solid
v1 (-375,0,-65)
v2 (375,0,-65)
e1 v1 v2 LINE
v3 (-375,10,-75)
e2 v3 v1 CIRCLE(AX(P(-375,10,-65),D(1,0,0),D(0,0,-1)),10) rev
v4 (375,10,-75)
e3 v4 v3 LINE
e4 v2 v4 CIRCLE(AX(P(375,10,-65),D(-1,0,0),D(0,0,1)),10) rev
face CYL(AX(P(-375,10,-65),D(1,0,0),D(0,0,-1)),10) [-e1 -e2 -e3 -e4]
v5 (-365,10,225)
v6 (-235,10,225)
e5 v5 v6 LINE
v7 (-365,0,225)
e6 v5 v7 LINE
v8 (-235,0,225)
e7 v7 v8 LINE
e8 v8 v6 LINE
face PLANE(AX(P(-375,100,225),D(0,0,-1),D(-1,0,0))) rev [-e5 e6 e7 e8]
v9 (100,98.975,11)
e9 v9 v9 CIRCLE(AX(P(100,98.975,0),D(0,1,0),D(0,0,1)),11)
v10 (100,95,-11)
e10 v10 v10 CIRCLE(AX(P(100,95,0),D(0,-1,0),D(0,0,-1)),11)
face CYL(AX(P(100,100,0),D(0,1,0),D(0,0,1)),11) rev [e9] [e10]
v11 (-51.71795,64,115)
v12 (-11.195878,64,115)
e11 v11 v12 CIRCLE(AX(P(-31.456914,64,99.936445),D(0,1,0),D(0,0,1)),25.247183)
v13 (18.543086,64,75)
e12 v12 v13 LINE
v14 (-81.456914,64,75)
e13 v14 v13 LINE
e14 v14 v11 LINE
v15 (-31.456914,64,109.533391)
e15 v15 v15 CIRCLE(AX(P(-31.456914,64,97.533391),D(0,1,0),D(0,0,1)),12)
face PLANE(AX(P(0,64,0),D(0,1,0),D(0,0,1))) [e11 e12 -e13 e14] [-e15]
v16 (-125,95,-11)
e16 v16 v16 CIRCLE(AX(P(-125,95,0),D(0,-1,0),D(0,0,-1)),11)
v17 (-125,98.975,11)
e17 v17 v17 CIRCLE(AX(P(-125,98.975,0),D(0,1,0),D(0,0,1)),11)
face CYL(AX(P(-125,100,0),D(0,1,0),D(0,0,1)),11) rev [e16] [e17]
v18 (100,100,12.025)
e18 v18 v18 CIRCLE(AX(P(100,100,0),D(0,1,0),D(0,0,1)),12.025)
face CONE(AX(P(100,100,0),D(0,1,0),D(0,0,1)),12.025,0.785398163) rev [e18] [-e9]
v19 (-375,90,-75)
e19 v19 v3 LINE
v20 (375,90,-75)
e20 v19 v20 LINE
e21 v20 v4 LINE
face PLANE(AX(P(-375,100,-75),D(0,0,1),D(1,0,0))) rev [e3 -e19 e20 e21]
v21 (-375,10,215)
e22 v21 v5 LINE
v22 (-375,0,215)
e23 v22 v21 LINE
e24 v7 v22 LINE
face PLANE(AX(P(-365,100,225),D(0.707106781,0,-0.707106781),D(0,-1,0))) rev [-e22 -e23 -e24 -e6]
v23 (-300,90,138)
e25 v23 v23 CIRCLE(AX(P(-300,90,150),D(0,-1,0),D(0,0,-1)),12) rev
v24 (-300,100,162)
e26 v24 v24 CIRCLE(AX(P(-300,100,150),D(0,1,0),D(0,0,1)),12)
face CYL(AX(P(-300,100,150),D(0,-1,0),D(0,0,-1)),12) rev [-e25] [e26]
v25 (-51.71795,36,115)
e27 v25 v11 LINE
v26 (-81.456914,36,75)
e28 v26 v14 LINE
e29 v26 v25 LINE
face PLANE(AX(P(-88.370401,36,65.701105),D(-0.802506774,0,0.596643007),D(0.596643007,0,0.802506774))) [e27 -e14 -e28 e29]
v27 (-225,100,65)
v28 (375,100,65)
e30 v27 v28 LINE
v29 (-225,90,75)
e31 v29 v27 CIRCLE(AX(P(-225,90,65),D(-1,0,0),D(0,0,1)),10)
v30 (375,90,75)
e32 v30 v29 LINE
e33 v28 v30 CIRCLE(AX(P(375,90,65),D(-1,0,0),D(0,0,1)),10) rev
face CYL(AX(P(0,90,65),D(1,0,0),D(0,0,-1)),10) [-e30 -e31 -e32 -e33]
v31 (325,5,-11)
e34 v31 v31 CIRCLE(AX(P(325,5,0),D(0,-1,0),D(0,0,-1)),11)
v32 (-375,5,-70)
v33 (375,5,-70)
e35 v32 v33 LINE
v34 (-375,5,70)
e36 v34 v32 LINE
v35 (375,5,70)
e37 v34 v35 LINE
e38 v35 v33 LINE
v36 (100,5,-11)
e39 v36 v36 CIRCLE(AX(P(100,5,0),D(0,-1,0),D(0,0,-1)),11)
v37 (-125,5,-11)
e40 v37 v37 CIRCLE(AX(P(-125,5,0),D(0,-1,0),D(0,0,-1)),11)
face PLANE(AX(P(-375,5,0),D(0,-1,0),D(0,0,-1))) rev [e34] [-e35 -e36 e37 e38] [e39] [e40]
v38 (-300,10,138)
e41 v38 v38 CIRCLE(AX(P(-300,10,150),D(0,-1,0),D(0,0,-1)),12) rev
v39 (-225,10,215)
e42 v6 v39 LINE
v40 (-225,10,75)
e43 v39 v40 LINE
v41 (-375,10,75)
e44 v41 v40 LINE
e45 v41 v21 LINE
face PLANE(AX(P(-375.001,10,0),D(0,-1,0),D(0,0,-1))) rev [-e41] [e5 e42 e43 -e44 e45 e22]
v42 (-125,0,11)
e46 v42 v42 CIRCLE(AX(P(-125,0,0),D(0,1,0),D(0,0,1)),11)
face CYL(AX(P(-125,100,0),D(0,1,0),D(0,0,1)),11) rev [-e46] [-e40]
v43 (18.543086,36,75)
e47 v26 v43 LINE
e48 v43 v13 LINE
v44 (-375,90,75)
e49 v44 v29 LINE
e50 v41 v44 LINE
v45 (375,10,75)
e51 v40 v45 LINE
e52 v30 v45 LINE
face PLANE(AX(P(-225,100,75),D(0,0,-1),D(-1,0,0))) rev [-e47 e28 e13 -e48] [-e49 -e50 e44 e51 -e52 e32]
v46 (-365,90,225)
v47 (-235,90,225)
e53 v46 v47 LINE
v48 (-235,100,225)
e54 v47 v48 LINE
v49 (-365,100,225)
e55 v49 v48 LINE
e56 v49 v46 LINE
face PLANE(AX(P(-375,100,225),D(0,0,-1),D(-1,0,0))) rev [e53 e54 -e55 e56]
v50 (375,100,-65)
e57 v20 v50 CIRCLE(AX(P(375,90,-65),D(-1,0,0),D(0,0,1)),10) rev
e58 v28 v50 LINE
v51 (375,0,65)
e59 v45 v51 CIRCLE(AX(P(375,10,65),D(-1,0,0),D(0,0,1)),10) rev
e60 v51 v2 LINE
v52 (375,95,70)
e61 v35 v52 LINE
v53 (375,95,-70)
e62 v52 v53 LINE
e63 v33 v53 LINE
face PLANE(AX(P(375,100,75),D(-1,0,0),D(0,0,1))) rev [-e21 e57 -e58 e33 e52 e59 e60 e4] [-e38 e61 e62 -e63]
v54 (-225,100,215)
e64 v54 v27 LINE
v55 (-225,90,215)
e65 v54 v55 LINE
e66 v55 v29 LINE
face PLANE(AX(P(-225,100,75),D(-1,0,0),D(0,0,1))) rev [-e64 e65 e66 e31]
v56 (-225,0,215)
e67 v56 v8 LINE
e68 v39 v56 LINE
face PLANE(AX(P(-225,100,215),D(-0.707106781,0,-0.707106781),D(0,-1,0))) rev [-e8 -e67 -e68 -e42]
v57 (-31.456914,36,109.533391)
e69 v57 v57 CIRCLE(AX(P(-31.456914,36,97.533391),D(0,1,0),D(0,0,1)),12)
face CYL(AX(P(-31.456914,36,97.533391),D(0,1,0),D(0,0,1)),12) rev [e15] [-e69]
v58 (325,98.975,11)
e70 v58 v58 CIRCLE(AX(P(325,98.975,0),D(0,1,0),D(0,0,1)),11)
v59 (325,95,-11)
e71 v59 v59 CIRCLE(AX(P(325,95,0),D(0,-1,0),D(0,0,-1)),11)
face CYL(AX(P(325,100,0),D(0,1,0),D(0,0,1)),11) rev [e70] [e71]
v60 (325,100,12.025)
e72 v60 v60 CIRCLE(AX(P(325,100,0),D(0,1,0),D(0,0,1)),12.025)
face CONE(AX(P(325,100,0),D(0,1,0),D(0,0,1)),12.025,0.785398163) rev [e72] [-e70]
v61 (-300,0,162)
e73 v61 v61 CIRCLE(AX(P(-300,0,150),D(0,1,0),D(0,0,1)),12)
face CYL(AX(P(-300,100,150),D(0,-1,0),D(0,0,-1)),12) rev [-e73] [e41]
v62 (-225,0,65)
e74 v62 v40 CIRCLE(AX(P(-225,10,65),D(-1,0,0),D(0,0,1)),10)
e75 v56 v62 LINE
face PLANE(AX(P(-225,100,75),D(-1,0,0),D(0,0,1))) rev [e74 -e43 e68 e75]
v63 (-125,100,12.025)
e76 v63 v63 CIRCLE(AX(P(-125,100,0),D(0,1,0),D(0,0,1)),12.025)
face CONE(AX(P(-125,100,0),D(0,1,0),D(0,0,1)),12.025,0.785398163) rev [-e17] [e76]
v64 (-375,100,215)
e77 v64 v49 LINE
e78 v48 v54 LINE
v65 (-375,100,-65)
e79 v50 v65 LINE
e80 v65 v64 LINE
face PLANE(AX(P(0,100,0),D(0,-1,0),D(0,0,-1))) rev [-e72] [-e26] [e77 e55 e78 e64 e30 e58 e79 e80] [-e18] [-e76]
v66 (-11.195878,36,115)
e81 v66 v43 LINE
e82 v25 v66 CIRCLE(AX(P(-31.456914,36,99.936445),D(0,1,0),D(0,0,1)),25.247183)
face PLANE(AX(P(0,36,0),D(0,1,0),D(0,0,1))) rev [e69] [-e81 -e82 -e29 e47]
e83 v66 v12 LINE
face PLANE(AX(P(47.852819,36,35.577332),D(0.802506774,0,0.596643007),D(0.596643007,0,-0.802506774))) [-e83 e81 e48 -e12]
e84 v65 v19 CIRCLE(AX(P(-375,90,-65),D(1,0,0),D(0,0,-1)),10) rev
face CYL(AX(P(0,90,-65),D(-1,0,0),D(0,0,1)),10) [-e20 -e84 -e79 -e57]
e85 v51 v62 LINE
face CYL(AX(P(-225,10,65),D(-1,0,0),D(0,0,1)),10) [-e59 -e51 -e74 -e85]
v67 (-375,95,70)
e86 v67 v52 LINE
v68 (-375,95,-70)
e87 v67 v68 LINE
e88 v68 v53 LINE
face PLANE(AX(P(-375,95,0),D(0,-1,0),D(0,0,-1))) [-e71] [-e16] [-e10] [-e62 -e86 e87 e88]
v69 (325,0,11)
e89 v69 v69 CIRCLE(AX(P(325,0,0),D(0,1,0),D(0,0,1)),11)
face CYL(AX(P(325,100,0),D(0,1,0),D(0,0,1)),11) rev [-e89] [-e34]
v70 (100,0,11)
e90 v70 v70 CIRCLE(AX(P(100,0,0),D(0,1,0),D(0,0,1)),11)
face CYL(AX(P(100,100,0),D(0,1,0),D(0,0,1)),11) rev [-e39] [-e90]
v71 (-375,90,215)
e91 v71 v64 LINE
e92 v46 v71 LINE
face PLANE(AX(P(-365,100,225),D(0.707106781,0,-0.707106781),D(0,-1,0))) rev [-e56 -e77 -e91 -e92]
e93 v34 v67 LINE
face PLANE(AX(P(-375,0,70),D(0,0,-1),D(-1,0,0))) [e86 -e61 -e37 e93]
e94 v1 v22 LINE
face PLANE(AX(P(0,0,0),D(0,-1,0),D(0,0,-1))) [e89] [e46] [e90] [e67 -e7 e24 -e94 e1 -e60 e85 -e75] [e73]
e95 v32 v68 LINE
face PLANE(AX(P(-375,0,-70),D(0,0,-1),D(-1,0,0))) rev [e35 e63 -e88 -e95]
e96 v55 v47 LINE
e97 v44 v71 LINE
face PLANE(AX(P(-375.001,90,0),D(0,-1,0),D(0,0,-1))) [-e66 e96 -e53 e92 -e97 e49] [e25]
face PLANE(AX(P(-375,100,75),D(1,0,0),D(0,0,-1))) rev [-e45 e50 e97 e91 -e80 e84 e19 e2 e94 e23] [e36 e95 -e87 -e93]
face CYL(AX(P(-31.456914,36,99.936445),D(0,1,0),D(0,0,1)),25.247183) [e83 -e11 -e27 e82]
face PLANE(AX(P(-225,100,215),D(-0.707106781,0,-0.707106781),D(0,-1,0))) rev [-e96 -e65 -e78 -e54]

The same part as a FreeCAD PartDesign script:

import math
import FreeCAD as App
import Part
import Sketcher

V = App.Vector


def edges_at(feature, points):
    """Names of the edges that pass closest to the given points."""
    edges = feature.Shape.Edges
    near = lambda p: min(range(len(edges)), key=lambda i: edges[i].distToShape(Part.Vertex(*p))[0])
    return sorted({f"Edge{near(p) + 1}" for p in points})


def add_polygon(sketch, points):
    """Adds a closed chain of lines whose ends are joined by coincident constraints."""
    first, n = sketch.GeometryCount, len(points)
    for a, b in zip(points, points[1:] + points[:1]):
        sketch.addGeometry(Part.LineSegment(App.Vector(*a, 0), App.Vector(*b, 0)), False)
    for i in range(n):
        sketch.addConstraint(Sketcher.Constraint("Coincident", first + i, 2, first + (i + 1) % n, 1))

doc = App.newDocument("Part")
body = doc.addObject("PartDesign::Body", "Body")

# Sketch on XZ plane
sketch1 = doc.addObject("Sketcher::SketchObject", "Sketch")
body.addObject(sketch1)
sketch1.AttachmentSupport = (doc.XZ_Plane, [""])
sketch1.MapMode = "FlatFace"
add_polygon(sketch1, [(375, -75), (-375, -75), (-375, 225), (-225, 225), (-225, 75), (375, 75)])  # lines 0-5
sketch1.addGeometry(Part.Circle(V(-300, 150, 0), V(0, 0, 1), 12), False)  # 6
sketch1.addConstraint([
    Sketcher.Constraint("Horizontal", 0),
    Sketcher.Constraint("Vertical", 1),
    Sketcher.Constraint("Horizontal", 2),
    Sketcher.Constraint("Vertical", 3),
    Sketcher.Constraint("Horizontal", 4),
    Sketcher.Constraint("Vertical", 5),
    Sketcher.Constraint("Symmetric", 0, 2, 4, 2, -1, 1),
    Sketcher.Constraint("Equal", 2, 3),
    Sketcher.Constraint("Equal", 3, 5),
    Sketcher.Constraint("Diameter", 6, 24.0),
    Sketcher.Constraint("DistanceX", 0, 2, 0, 1, 750.0),
    Sketcher.Constraint("DistanceX", 2, 1, 2, 2, 150.0),
    Sketcher.Constraint("DistanceX", 6, 3, -1, 1, 300.0),
    Sketcher.Constraint("DistanceY", -1, 1, 6, 3, 150.0),
])
pad1 = doc.addObject("PartDesign::Pad", "Pad")
body.addObject(pad1)
pad1.Profile = sketch1
pad1.Length = 100
pad1.Reversed = True

# Sketch on YZ plane
sketch2 = doc.addObject("Sketcher::SketchObject", "Sketch001")
body.addObject(sketch2)
sketch2.AttachmentSupport = (doc.YZ_Plane, [""])
sketch2.MapMode = "FlatFace"
sketch2.AttachmentOffset = App.Placement(V(0, 0, 375), App.Rotation())
add_polygon(sketch2, [(95, 70), (5, 70), (5, -70), (95, -70)])  # lines 0-3
sketch2.addConstraint([
    Sketcher.Constraint("Horizontal", 0),
    Sketcher.Constraint("Vertical", 1),
    Sketcher.Constraint("Horizontal", 2),
    Sketcher.Constraint("Vertical", 3),
    Sketcher.Constraint("DistanceX", 0, 2, 0, 1, 90.0),
    Sketcher.Constraint("DistanceY", 1, 2, 1, 1, 140.0),
    Sketcher.Constraint("DistanceX", -1, 1, 0, 2, 5.0),
    Sketcher.Constraint("DistanceY", -1, 1, 0, 2, 70.0),
])
pocket1 = doc.addObject("PartDesign::Pocket", "Pocket")
body.addObject(pocket1)
pocket1.Profile = sketch2
pocket1.Type = "ThroughAll"

# Sketch on YZ plane
sketch3 = doc.addObject("Sketcher::SketchObject", "Sketch002")
body.addObject(sketch3)
sketch3.AttachmentSupport = (doc.YZ_Plane, [""])
sketch3.MapMode = "FlatFace"
sketch3.AttachmentOffset = App.Placement(V(0, 0, -225), App.Rotation())
add_polygon(sketch3, [(10, 375), (90, 375), (90, 75), (10, 75)])  # lines 0-3
sketch3.addConstraint([
    Sketcher.Constraint("Horizontal", 0),
    Sketcher.Constraint("Vertical", 1),
    Sketcher.Constraint("Horizontal", 2),
    Sketcher.Constraint("Vertical", 3),
    Sketcher.Constraint("DistanceX", 0, 1, 0, 2, 80.0),
    Sketcher.Constraint("DistanceY", 1, 2, 1, 1, 300.0),
    Sketcher.Constraint("DistanceX", -1, 1, 0, 2, 90.0),
    Sketcher.Constraint("DistanceY", -1, 1, 0, 2, 375.0),
])
pocket2 = doc.addObject("PartDesign::Pocket", "Pocket001")
body.addObject(pocket2)
pocket2.Profile = sketch3
pocket2.Length = 150
doc.recompute()

fillet = doc.addObject("PartDesign::Fillet", "Fillet")
body.addObject(fillet)
fillet.Base = (pocket2, edges_at(pocket2, [(0, 100, -75), (0, 0, -75)]))
fillet.Radius = 10
doc.recompute()

fillet2 = doc.addObject("PartDesign::Fillet", "Fillet001")
body.addObject(fillet2)
fillet2.Base = (fillet, edges_at(fillet, [(75, 100, 75), (75, 0, 75)]))
fillet2.Radius = 10
doc.recompute()

chamfer = doc.addObject("PartDesign::Chamfer", "Chamfer")
body.addObject(chamfer)
chamfer.Base = (fillet2, edges_at(fillet2, [
    (-225, 95, 225),
    (-375, 95, 225),
    (-225, 5, 225),
    (-375, 5, 225),
]))
chamfer.Size = 10

# Sketch on XZ plane
sketch4 = doc.addObject("Sketcher::SketchObject", "Sketch003")
body.addObject(sketch4)
sketch4.AttachmentSupport = (doc.XZ_Plane, [""])
sketch4.MapMode = "FlatFace"
sketch4.AttachmentOffset = App.Placement(V(0, 0, -100), App.Rotation())
sketch4.addGeometry([
    Part.Circle(V(100, 0, 0), V(0, 0, 1), 11),
    Part.Circle(V(325, 0, 0), V(0, 0, 1), 11),
    Part.Circle(V(-125, 0, 0), V(0, 0, 1), 11),
], False)
sketch4.addConstraint([
    Sketcher.Constraint("Equal", 0, 1),
    Sketcher.Constraint("Equal", 1, 2),
    Sketcher.Constraint("PointOnObject", 0, 3, -1),
    Sketcher.Constraint("PointOnObject", 1, 3, -1),
    Sketcher.Constraint("PointOnObject", 2, 3, -1),
    Sketcher.Constraint("Diameter", 0, 22.0),
    Sketcher.Constraint("DistanceX", -1, 1, 0, 3, 100.0),
    Sketcher.Constraint("DistanceX", -1, 1, 1, 3, 325.0),
    Sketcher.Constraint("DistanceX", 2, 3, -1, 1, 125.0),
])
doc.recompute()
hole = doc.addObject("PartDesign::Hole", "Hole")
body.addObject(hole)
hole.Profile = sketch4
hole.ThreadType = "None"
hole.Diameter = 22
hole.DepthType = "ThroughAll"
hole.HoleCutType = "Countersink"
hole.HoleCutDiameter = 24.05
hole.HoleCutCountersinkAngle = 90
hole.Reversed = True

# Sketch on XZ plane
sketch5 = doc.addObject("Sketcher::SketchObject", "Sketch004")
body.addObject(sketch5)
sketch5.AttachmentSupport = (doc.XZ_Plane, [""])
sketch5.MapMode = "FlatFace"
sketch5.AttachmentOffset = App.Placement(V(0, 0, -64), App.Rotation())
sketch5.addGeometry([
    Part.LineSegment(V(-81, 75, 0), V(-52, 115, 0)),  # 0
    Part.ArcOfCircle(Part.Circle(V(-31, 100, 0), V(0, 0, 1), 25), math.radians(37), math.radians(143)),  # 1
    Part.LineSegment(V(-11, 115, 0), V(19, 75, 0)),  # 2
    Part.LineSegment(V(19, 75, 0), V(-81, 75, 0)),  # 3
    Part.Circle(V(-31, 98, 0), V(0, 0, 1), 12),  # 4
], False)
sketch5.addConstraint([
    Sketcher.Constraint("Tangent", 0, 2, 1, 2),
    Sketcher.Constraint("Tangent", 1, 1, 2, 1),
    Sketcher.Constraint("Coincident", 2, 2, 3, 1),
    Sketcher.Constraint("Coincident", 3, 2, 0, 1),
    Sketcher.Constraint("Horizontal", 3),
    Sketcher.Constraint("Horizontal", 0, 2, 1, 1),
    Sketcher.Constraint("Vertical", 1, 3, 4, 3),
    Sketcher.Constraint("Diameter", 4, 24.0),
    Sketcher.Constraint("DistanceX", 3, 2, 3, 1, 100.0),
    Sketcher.Constraint("DistanceY", -1, 1, 0, 2, 115.0),
    Sketcher.Constraint("DistanceY", -1, 1, 2, 2, 75.0),
    Sketcher.Constraint("Radius", 1, 25.247183),
    Sketcher.Constraint("DistanceY", -1, 1, 4, 3, 97.533391),
    Sketcher.Constraint("DistanceX", 0, 2, -1, 1, 51.71795),
])
pad2 = doc.addObject("PartDesign::Pad", "Pad001")
body.addObject(pad2)
pad2.Profile = sketch5
pad2.Length = 28

doc.recompute()
